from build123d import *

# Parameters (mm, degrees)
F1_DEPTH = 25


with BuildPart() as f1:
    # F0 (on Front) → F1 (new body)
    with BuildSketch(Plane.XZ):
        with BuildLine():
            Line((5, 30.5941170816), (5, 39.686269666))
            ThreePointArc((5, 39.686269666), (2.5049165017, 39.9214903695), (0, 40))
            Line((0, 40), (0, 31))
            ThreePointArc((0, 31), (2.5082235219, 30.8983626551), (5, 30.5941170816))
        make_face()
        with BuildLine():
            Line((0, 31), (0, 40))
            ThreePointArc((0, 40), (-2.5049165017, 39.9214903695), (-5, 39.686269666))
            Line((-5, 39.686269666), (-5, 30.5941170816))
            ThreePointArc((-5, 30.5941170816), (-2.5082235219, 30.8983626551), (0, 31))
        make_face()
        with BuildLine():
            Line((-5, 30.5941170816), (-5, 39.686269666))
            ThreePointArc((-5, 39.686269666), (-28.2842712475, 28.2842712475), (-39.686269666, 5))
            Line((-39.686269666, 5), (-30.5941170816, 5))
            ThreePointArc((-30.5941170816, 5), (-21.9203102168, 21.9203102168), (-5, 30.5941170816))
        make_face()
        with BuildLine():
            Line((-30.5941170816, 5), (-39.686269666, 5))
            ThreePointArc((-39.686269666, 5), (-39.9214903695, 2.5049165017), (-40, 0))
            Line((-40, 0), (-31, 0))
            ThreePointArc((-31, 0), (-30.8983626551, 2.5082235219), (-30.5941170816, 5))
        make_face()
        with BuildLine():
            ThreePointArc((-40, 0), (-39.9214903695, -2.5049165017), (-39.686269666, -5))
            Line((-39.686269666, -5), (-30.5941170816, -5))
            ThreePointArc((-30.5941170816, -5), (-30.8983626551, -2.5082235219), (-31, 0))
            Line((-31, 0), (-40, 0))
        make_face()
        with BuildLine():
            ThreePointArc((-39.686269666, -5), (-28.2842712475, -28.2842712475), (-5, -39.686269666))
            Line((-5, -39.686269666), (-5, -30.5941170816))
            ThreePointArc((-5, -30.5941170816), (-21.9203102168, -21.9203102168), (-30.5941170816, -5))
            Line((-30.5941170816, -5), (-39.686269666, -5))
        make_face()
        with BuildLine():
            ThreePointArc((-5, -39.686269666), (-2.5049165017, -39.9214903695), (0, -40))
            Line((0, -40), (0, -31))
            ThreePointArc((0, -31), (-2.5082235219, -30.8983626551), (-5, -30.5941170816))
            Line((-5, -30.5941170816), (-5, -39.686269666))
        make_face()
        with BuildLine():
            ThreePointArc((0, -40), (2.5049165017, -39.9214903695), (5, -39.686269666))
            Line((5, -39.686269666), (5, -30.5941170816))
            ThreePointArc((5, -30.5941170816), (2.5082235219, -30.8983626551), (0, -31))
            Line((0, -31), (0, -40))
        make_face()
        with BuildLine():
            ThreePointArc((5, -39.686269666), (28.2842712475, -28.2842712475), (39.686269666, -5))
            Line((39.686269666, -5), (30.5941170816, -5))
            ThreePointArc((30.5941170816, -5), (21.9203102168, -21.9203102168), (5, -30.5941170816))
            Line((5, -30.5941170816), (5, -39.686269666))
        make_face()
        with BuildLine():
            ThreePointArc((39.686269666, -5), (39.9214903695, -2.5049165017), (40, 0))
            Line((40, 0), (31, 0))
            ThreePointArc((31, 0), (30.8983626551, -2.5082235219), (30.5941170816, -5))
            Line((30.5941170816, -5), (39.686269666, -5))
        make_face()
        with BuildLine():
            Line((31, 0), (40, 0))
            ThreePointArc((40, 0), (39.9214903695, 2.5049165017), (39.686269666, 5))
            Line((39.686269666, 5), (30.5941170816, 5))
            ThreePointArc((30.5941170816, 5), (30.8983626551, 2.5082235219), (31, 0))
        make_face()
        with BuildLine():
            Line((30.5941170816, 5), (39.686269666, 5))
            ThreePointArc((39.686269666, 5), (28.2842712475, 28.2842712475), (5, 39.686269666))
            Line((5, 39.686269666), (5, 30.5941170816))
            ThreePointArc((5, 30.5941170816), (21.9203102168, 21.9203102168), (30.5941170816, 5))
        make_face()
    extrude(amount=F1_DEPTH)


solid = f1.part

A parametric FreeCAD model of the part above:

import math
import FreeCAD as App
import Part
import Sketcher

V = App.Vector

doc = App.newDocument("Part")
params = doc.addObject("Spreadsheet::Sheet", "Params")
for row, (alias, value) in enumerate([
    ("sketch1_radius", "40 mm"),
    ("sketch1_radius2", "31 mm"),
    ("pad1_length", "25 mm"),
], start=1):
    params.set(f"A{row}", alias)
    params.set(f"B{row}", "=" + value)
    params.setAlias(f"B{row}", alias)

body = doc.addObject("PartDesign::Body", "Body")

sketch1 = body.newObject("Sketcher::SketchObject", "Sketch")
sketch1.AttachmentSupport = (doc.getObject("XZ_Plane"), [""])
sketch1.MapMode = "FlatFace"
sketch1.addGeometry(Part.ArcOfCircle(Part.Circle(V(0, 0, 0), V(0, 0, 1), 40), math.radians(82.819244), math.radians(90)), False)
sketch1.addGeometry(Part.ArcOfCircle(Part.Circle(V(0, 0, 0), V(0, 0, 1), 40), math.radians(90), math.radians(97.180756)), False)
sketch1.addGeometry(Part.ArcOfCircle(Part.Circle(V(0, 0, 0), V(0, 0, 1), 40), math.radians(97.180756), math.radians(172.819244)), False)
sketch1.addGeometry(Part.ArcOfCircle(Part.Circle(V(0, 0, 0), V(0, 0, 1), 40), math.radians(172.819244), math.radians(180)), False)
sketch1.addGeometry(Part.ArcOfCircle(Part.Circle(V(0, 0, 0), V(0, 0, 1), 40), math.radians(180), math.radians(187.180756)), False)
sketch1.addGeometry(Part.ArcOfCircle(Part.Circle(V(0, 0, 0), V(0, 0, 1), 40), math.radians(-172.819244), math.radians(-97.180756)), False)
sketch1.addGeometry(Part.ArcOfCircle(Part.Circle(V(0, 0, 0), V(0, 0, 1), 40), math.radians(-97.180756), math.radians(-90)), False)
sketch1.addGeometry(Part.ArcOfCircle(Part.Circle(V(0, 0, 0), V(0, 0, 1), 40), math.radians(-90), math.radians(-82.819244)), False)
sketch1.addGeometry(Part.ArcOfCircle(Part.Circle(V(0, 0, 0), V(0, 0, 1), 40), math.radians(-82.819244), math.radians(-7.180756)), False)
sketch1.addGeometry(Part.ArcOfCircle(Part.Circle(V(0, 0, 0), V(0, 0, 1), 40), math.radians(-7.180756), math.radians(0)), False)
sketch1.addGeometry(Part.ArcOfCircle(Part.Circle(V(0, 0, 0), V(0, 0, 1), 40), math.radians(0), math.radians(7.180756)), False)
sketch1.addGeometry(Part.ArcOfCircle(Part.Circle(V(0, 0, 0), V(0, 0, 1), 40), math.radians(7.180756), math.radians(82.819244)), False)
sketch1.addGeometry(Part.ArcOfCircle(Part.Circle(V(0, 0, 0), V(0, 0, 1), 31), math.radians(0), math.radians(9.281799)), False)
sketch1.addGeometry(Part.ArcOfCircle(Part.Circle(V(0, 0, 0), V(0, 0, 1), 31), math.radians(-9.281799), math.radians(0)), False)
sketch1.addGeometry(Part.ArcOfCircle(Part.Circle(V(0, 0, 0), V(0, 0, 1), 31), math.radians(-80.718201), math.radians(-9.281799)), False)
sketch1.addGeometry(Part.ArcOfCircle(Part.Circle(V(0, 0, 0), V(0, 0, 1), 31), math.radians(-90), math.radians(-80.718201)), False)
sketch1.addGeometry(Part.ArcOfCircle(Part.Circle(V(0, 0, 0), V(0, 0, 1), 31), math.radians(-99.281799), math.radians(-90)), False)
sketch1.addGeometry(Part.ArcOfCircle(Part.Circle(V(0, 0, 0), V(0, 0, 1), 31), math.radians(-170.718201), math.radians(-99.281799)), False)
sketch1.addGeometry(Part.ArcOfCircle(Part.Circle(V(0, 0, 0), V(0, 0, 1), 31), math.radians(180), math.radians(189.281799)), False)
sketch1.addGeometry(Part.ArcOfCircle(Part.Circle(V(0, 0, 0), V(0, 0, 1), 31), math.radians(170.718201), math.radians(180)), False)
sketch1.addGeometry(Part.ArcOfCircle(Part.Circle(V(0, 0, 0), V(0, 0, 1), 31), math.radians(99.281799), math.radians(170.718201)), False)
sketch1.addGeometry(Part.ArcOfCircle(Part.Circle(V(0, 0, 0), V(0, 0, 1), 31), math.radians(90), math.radians(99.281799)), False)
sketch1.addGeometry(Part.ArcOfCircle(Part.Circle(V(0, 0, 0), V(0, 0, 1), 31), math.radians(80.718201), math.radians(90)), False)
sketch1.addGeometry(Part.ArcOfCircle(Part.Circle(V(0, 0, 0), V(0, 0, 1), 31), math.radians(9.281799), math.radians(80.718201)), False)
sketch1.addConstraint(Sketcher.Constraint("Tangent", 0, 2, 1, 1))
sketch1.addConstraint(Sketcher.Constraint("Tangent", 1, 2, 2, 1))
sketch1.addConstraint(Sketcher.Constraint("Tangent", 2, 2, 3, 1))
sketch1.addConstraint(Sketcher.Constraint("Tangent", 3, 2, 4, 1))
sketch1.addConstraint(Sketcher.Constraint("Tangent", 4, 2, 5, 1))
sketch1.addConstraint(Sketcher.Constraint("Tangent", 5, 2, 6, 1))
sketch1.addConstraint(Sketcher.Constraint("Tangent", 6, 2, 7, 1))
sketch1.addConstraint(Sketcher.Constraint("Tangent", 7, 2, 8, 1))
sketch1.addConstraint(Sketcher.Constraint("Tangent", 8, 2, 9, 1))
sketch1.addConstraint(Sketcher.Constraint("Tangent", 9, 2, 10, 1))
sketch1.addConstraint(Sketcher.Constraint("Tangent", 10, 2, 11, 1))
sketch1.addConstraint(Sketcher.Constraint("Tangent", 11, 2, 0, 1))
sketch1.addConstraint(Sketcher.Constraint("Tangent", 12, 1, 13, 2))
sketch1.addConstraint(Sketcher.Constraint("Tangent", 13, 1, 14, 2))
sketch1.addConstraint(Sketcher.Constraint("Tangent", 14, 1, 15, 2))
sketch1.addConstraint(Sketcher.Constraint("Tangent", 15, 1, 16, 2))
sketch1.addConstraint(Sketcher.Constraint("Tangent", 16, 1, 17, 2))
sketch1.addConstraint(Sketcher.Constraint("Tangent", 17, 1, 18, 2))
sketch1.addConstraint(Sketcher.Constraint("Tangent", 18, 1, 19, 2))
sketch1.addConstraint(Sketcher.Constraint("Tangent", 19, 1, 20, 2))
sketch1.addConstraint(Sketcher.Constraint("Tangent", 20, 1, 21, 2))
sketch1.addConstraint(Sketcher.Constraint("Tangent", 21, 1, 22, 2))
sketch1.addConstraint(Sketcher.Constraint("Tangent", 22, 1, 23, 2))
sketch1.addConstraint(Sketcher.Constraint("Tangent", 23, 1, 12, 2))
sketch1.addConstraint(Sketcher.Constraint("Coincident", 0, 3, -1, 1))
sketch1.addConstraint(Sketcher.Constraint("Coincident", 2, 3, -1, 1))
sketch1.addConstraint(Sketcher.Constraint("Coincident", 4, 3, -1, 1))
sketch1.addConstraint(Sketcher.Constraint("Coincident", 6, 3, -1, 1))
sketch1.addConstraint(Sketcher.Constraint("Coincident", 8, 3, -1, 1))
sketch1.addConstraint(Sketcher.Constraint("Coincident", 12, 3, -1, 1))
sketch1.addConstraint(Sketcher.Constraint("Coincident", 14, 3, -1, 1))
sketch1.addConstraint(Sketcher.Constraint("Coincident", 16, 3, -1, 1))
sketch1.addConstraint(Sketcher.Constraint("Coincident", 18, 3, -1, 1))
sketch1.addConstraint(Sketcher.Constraint("Coincident", 20, 3, -1, 1))
sketch1.addConstraint(Sketcher.Constraint("Equal", 8, 9))
sketch1.addConstraint(Sketcher.Constraint("Equal", 20, 21))
sketch1.addConstraint(Sketcher.Constraint("PointOnObject", 0, 2, -2))
sketch1.addConstraint(Sketcher.Constraint("PointOnObject", 3, 2, -1))
sketch1.addConstraint(Sketcher.Constraint("PointOnObject", 6, 2, -2))
sketch1.addConstraint(Sketcher.Constraint("PointOnObject", 9, 2, -1))
sketch1.addConstraint(Sketcher.Constraint("PointOnObject", 12, 1, -1))
sketch1.addConstraint(Sketcher.Constraint("PointOnObject", 15, 1, -2))
sketch1.addConstraint(Sketcher.Constraint("PointOnObject", 18, 1, -1))
sketch1.addConstraint(Sketcher.Constraint("PointOnObject", 21, 1, -2))
sketch1.addConstraint(Sketcher.Constraint("Horizontal", 5, 2, 7, 2))
sketch1.addConstraint(Sketcher.Constraint("Horizontal", 4, 2, 8, 2))
sketch1.addConstraint(Sketcher.Constraint("Horizontal", 2, 2, 10, 2))
sketch1.addConstraint(Sketcher.Constraint("Horizontal", 1, 2, 11, 2))
sketch1.addConstraint(Sketcher.Constraint("Horizontal", 8, 2, 13, 1))
sketch1.addConstraint(Sketcher.Constraint("Horizontal", 14, 1, 16, 1))
sketch1.addConstraint(Sketcher.Constraint("Horizontal", 13, 1, 17, 1))
sketch1.addConstraint(Sketcher.Constraint("Horizontal", 10, 2, 19, 1))
sketch1.addConstraint(Sketcher.Constraint("Horizontal", 20, 1, 22, 1))
sketch1.addConstraint(Sketcher.Constraint("Horizontal", 19, 1, 23, 1))
sketch1.addConstraint(Sketcher.Constraint("Vertical", 2, 2, 4, 2))
sketch1.addConstraint(Sketcher.Constraint("Vertical", 1, 2, 5, 2))
sketch1.addConstraint(Sketcher.Constraint("Vertical", 11, 2, 14, 1))
sketch1.addConstraint(Sketcher.Constraint("Vertical", 16, 1, 20, 1))
sketch1.addConstraint(Sketcher.Constraint("Radius", 0, 40.0))
sketch1.addConstraint(Sketcher.Constraint("Radius", 12, 31.0))
sketch1.addConstraint(Sketcher.Constraint("DistanceX", 1, 2, -1, 1, 5.0))
sketch1.addConstraint(Sketcher.Constraint("DistanceY", -1, 1, 2, 2, 5.0))
sketch1.setExpression("Constraints[58]", "Params.sketch1_radius")
sketch1.setExpression("Constraints[59]", "Params.sketch1_radius2")
pad1 = body.newObject("PartDesign::Pad", "Pad")
pad1.Profile = sketch1
pad1.setExpression("Length", "Params.pad1_length")

doc.recompute()
